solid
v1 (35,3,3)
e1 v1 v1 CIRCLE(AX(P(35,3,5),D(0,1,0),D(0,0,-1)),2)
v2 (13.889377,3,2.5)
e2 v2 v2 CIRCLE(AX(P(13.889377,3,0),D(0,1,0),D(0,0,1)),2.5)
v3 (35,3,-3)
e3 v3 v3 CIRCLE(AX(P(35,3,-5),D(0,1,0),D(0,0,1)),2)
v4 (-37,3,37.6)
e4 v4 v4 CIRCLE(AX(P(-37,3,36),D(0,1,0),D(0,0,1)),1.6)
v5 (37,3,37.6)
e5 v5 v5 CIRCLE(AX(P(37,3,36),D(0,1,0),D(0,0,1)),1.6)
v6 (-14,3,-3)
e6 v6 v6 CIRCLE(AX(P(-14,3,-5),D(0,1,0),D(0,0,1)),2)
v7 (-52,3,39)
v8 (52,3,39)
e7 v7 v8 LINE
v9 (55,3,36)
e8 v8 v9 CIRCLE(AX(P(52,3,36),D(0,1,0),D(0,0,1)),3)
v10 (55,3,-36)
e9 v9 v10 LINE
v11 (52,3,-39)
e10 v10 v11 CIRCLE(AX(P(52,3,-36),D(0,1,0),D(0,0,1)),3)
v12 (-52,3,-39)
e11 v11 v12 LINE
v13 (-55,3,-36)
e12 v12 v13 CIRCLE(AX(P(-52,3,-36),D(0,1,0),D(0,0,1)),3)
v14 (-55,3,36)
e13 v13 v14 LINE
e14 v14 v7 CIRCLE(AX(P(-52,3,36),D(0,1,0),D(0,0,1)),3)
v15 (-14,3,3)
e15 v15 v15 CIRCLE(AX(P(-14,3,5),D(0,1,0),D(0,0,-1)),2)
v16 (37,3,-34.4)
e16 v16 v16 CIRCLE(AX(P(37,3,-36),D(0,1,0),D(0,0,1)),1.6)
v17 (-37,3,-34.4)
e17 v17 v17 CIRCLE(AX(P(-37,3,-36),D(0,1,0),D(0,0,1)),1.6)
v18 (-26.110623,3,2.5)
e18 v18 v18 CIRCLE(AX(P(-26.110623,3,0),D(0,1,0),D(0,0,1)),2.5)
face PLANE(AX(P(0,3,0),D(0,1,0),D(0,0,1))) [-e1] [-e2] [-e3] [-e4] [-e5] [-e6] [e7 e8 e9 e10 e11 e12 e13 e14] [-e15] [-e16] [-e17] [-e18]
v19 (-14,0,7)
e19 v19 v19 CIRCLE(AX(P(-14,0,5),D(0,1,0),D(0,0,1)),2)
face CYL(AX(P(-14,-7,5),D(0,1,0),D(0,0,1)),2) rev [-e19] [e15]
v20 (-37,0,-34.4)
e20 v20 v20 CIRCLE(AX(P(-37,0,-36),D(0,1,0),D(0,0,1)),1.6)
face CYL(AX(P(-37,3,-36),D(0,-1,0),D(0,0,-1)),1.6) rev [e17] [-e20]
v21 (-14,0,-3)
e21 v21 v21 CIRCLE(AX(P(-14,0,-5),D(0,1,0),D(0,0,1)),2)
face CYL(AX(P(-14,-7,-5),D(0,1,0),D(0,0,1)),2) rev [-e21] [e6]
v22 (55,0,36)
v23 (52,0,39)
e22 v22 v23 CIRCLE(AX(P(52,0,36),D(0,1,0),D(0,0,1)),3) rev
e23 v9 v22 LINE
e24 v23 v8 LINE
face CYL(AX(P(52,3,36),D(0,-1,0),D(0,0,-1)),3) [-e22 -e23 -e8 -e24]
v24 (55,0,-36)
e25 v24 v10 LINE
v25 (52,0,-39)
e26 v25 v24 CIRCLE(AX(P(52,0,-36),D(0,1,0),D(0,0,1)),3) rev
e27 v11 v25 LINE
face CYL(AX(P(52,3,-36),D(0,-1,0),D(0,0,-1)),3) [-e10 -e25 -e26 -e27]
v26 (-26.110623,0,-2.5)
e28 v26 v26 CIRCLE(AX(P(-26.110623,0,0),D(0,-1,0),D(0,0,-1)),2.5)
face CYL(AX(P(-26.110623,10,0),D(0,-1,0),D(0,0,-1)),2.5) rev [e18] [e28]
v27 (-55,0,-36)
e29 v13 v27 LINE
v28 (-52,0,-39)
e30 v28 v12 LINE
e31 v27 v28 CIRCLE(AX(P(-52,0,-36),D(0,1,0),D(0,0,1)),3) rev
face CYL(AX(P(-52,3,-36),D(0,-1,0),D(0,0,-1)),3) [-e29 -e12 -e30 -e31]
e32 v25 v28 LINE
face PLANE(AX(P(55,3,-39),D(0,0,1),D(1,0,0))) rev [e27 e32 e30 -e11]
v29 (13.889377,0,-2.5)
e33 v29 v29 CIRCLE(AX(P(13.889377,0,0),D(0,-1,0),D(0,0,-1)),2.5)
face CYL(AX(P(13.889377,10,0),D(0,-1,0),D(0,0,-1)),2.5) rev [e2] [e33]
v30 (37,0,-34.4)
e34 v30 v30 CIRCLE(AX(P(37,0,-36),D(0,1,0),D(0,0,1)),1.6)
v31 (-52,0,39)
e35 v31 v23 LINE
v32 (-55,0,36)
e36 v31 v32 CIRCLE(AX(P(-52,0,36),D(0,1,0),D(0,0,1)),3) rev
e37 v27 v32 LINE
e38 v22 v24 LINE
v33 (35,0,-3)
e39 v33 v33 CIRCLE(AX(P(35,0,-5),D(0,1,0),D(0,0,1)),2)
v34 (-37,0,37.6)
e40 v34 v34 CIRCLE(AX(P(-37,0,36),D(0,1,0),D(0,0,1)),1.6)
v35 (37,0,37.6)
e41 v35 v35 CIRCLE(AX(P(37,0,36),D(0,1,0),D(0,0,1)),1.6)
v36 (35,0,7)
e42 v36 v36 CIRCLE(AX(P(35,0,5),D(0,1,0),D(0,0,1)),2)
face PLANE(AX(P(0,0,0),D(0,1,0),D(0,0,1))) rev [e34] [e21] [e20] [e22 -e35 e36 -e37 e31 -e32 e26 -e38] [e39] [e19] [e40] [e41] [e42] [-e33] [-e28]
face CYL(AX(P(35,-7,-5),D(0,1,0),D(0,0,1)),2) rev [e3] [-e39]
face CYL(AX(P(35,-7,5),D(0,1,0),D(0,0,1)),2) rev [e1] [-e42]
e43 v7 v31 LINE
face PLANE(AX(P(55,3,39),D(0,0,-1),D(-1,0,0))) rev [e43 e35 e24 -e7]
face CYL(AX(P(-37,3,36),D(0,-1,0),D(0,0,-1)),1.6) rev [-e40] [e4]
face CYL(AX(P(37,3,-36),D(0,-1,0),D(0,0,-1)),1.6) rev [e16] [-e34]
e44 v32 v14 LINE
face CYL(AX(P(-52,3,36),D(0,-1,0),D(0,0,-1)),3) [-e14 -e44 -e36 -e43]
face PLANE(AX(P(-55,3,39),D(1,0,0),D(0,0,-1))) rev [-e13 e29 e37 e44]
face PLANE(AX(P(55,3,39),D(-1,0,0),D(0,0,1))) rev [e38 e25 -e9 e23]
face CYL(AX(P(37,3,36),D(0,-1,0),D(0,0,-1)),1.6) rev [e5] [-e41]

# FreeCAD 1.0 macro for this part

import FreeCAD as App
import Part
import Sketcher


def edges_at(feature, points):
    """Names of the edges that pass closest to the given points."""
    edges = feature.Shape.Edges
    near = lambda p: min(range(len(edges)), key=lambda i: edges[i].distToShape(Part.Vertex(*p))[0])
    return sorted({f"Edge{near(p) + 1}" for p in points})

doc = App.newDocument("Part")
params = doc.addObject("Spreadsheet::Sheet", "Params")
for row, (alias, value) in enumerate([
    ("sketch1_diameter", "3.2 mm"),
    ("sketch1_width", "110 mm"),
    ("sketch1_height", "78 mm"),
    ("pad1_length", "3 mm"),
    ("fillet_radius", "3 mm"),
    ("sketch2_diameter", "4 mm"),
    ("pocket1_length", "10 mm"),
    ("sketch3_diameter", "5 mm"),
    ("pocket2_length", "10 mm"),
], start=1):
    params.set(f"A{row}", alias)
    params.set(f"B{row}", "=" + value)
    params.setAlias(f"B{row}", alias)

body = doc.addObject("PartDesign::Body", "Body")

# Sketch on XZ plane
sketch1 = body.newObject("Sketcher::SketchObject", "Sketch")
sketch1.AttachmentSupport = (doc.getObject("XZ_Plane"), [""])
sketch1.MapMode = "FlatFace"
sketch1.addGeometry([
    Part.LineSegment(App.Vector(-55, -39, 0), App.Vector(-55, 39, 0)),  # 0
    Part.LineSegment(App.Vector(-55, 39, 0), App.Vector(55, 39, 0)),  # 1
    Part.LineSegment(App.Vector(55, 39, 0), App.Vector(55, -39, 0)),  # 2
    Part.LineSegment(App.Vector(55, -39, 0), App.Vector(-55, -39, 0)),  # 3
    Part.Circle(App.Vector(-37, 36, 0), App.Vector(0, 0, 1), 1.6),  # 4
    Part.Circle(App.Vector(37, 36, 0), App.Vector(0, 0, 1), 1.6),  # 5
    Part.Circle(App.Vector(-37, -36, 0), App.Vector(0, 0, 1), 1.6),  # 6
    Part.Circle(App.Vector(37, -36, 0), App.Vector(0, 0, 1), 1.6),  # 7
], False)
sketch1.addConstraint([
    Sketcher.Constraint("Coincident", 0, 2, 1, 1),
    Sketcher.Constraint("Coincident", 1, 2, 2, 1),
    Sketcher.Constraint("Coincident", 2, 2, 3, 1),
    Sketcher.Constraint("Coincident", 3, 2, 0, 1),
    Sketcher.Constraint("Vertical", 0),
    Sketcher.Constraint("Horizontal", 1),
    Sketcher.Constraint("Vertical", 2),
    Sketcher.Constraint("Horizontal", 3),
    Sketcher.Constraint("Equal", 4, 5),
    Sketcher.Constraint("Equal", 5, 6),
    Sketcher.Constraint("Equal", 6, 7),
    Sketcher.Constraint("Symmetric", 5, 3, 6, 3, -1, 1),
    Sketcher.Constraint("Symmetric", 4, 3, 7, 3, -1, 1),
    Sketcher.Constraint("Symmetric", 0, 2, 2, 2, -1, 1),
    Sketcher.Constraint("Symmetric", 4, 3, 5, 3, -2),
    Sketcher.Constraint("Diameter", 4, 3.2),
    Sketcher.Constraint("DistanceX", 1, 1, 1, 2, 110.0),
    Sketcher.Constraint("DistanceY", 0, 1, 0, 2, 78.0),
    Sketcher.Constraint("DistanceX", 4, 3, -1, 1, 37.0),
    Sketcher.Constraint("DistanceY", -1, 1, 4, 3, 36.0),
])
sketch1.setExpression("Constraints[15]", "Params.sketch1_diameter")
sketch1.setExpression("Constraints[16]", "Params.sketch1_width")
sketch1.setExpression("Constraints[17]", "Params.sketch1_height")
pad1 = body.newObject("PartDesign::Pad", "Pad")
pad1.Profile = sketch1
pad1.setExpression("Length", "Params.pad1_length")
pad1.Reversed = True
doc.recompute()

fillet = body.newObject("PartDesign::Fillet", "Fillet")
fillet.Base = (pad1, edges_at(pad1, [
    (-55, 1.5, -39),
    (55, 1.5, -39),
    (55, 1.5, 39),
    (-55, 1.5, 39),
]))
fillet.setExpression("Radius", "Params.fillet_radius")

# Sketch on XZ plane
sketch2 = body.newObject("Sketcher::SketchObject", "Sketch001")
sketch2.AttachmentSupport = (doc.getObject("XZ_Plane"), [""])
sketch2.MapMode = "FlatFace"
sketch2.AttachmentOffset = App.Placement(App.Vector(0, 0, -3), App.Rotation())
sketch2.addGeometry([
    Part.Circle(App.Vector(-14, -5, 0), App.Vector(0, 0, 1), 2),
    Part.Circle(App.Vector(35, -5, 0), App.Vector(0, 0, 1), 2),
    Part.Circle(App.Vector(35, 5, 0), App.Vector(0, 0, 1), 2),
    Part.Circle(App.Vector(-14, 5, 0), App.Vector(0, 0, 1), 2),
], False)
sketch2.addConstraint([
    Sketcher.Constraint("Equal", 0, 1),
    Sketcher.Constraint("Equal", 1, 2),
    Sketcher.Constraint("Equal", 2, 3),
    Sketcher.Constraint("Symmetric", 1, 3, 2, 3, -1),
    Sketcher.Constraint("Symmetric", 0, 3, 3, 3, -1),
    Sketcher.Constraint("Horizontal", 0, 3, 1, 3),
    Sketcher.Constraint("Diameter", 0, 4.0),
    Sketcher.Constraint("DistanceX", 0, 3, -1, 1, 14.0),
    Sketcher.Constraint("DistanceY", 0, 3, -1, 1, 5.0),
    Sketcher.Constraint("DistanceX", -1, 1, 1, 3, 35.0),
])
sketch2.setExpression("Constraints[6]", "Params.sketch2_diameter")
pocket1 = body.newObject("PartDesign::Pocket", "Pocket")
pocket1.Profile = sketch2
pocket1.setExpression("Length", "Params.pocket1_length")
pocket1.Reversed = True

# Sketch on XZ plane
sketch3 = body.newObject("Sketcher::SketchObject", "Sketch002")
sketch3.AttachmentSupport = (doc.getObject("XZ_Plane"), [""])
sketch3.MapMode = "FlatFace"
sketch3.addGeometry([
    Part.Circle(App.Vector(-26.1, 0, 0), App.Vector(0, 0, 1), 2.5),
    Part.Circle(App.Vector(13.9, 0, 0), App.Vector(0, 0, 1), 2.5),
], False)
sketch3.addConstraint([
    Sketcher.Constraint("Equal", 0, 1),
    Sketcher.Constraint("PointOnObject", 0, 3, -1),
    Sketcher.Constraint("PointOnObject", 1, 3, -1),
    Sketcher.Constraint("Diameter", 0, 5.0),
    Sketcher.Constraint("DistanceX", 0, 3, 1, 3, 40.0),
    Sketcher.Constraint("DistanceX", 0, 3, -1, 1, 26.110623),
])
sketch3.setExpression("Constraints[3]", "Params.sketch3_diameter")
pocket2 = body.newObject("PartDesign::Pocket", "Pocket001")
pocket2.Profile = sketch3
pocket2.setExpression("Length", "Params.pocket2_length")

doc.recompute()
